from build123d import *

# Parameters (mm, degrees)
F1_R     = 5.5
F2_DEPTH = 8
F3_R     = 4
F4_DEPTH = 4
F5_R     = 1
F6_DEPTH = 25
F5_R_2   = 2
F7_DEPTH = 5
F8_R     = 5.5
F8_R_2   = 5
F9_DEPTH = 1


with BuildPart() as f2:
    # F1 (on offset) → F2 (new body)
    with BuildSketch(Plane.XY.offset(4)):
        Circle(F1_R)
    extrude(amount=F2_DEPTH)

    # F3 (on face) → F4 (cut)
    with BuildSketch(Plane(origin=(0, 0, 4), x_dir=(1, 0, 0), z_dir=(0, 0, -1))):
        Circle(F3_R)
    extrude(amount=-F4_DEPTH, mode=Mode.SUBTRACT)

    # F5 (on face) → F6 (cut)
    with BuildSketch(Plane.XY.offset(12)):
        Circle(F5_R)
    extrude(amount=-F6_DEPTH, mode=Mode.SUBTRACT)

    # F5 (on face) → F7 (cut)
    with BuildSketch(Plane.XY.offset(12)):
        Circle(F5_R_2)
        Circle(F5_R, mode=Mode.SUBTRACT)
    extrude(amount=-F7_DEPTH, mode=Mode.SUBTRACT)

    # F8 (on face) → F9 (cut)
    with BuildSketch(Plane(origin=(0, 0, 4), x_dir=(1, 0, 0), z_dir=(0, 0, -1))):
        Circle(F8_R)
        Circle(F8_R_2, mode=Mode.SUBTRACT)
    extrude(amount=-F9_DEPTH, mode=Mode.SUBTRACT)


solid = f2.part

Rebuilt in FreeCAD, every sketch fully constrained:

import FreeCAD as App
import Part
import Sketcher
Q = App.Units.Quantity

doc = App.newDocument("Part")
body = doc.addObject("PartDesign::Body", "Body")

# Sketch on XY plane
sketch1 = body.newObject("Sketcher::SketchObject", "Sketch")
sketch1.AttachmentSupport = (doc.getObject("XY_Plane"), [""])
sketch1.MapMode = "FlatFace"
sketch1.AttachmentOffset = App.Placement(App.Vector(0, 0, 4), App.Rotation())
sketch1.addGeometry(Part.Circle(App.Vector(0, 0, 0), App.Vector(0, 0, 1), 6), False)
sketch1.addConstraint([
    Sketcher.Constraint("Coincident", 0, 3, -1, 1),
    Sketcher.Constraint("Diameter", 0, Q("11 mm")),
])
pad1 = body.newObject("PartDesign::Pad", "Pad")
pad1.Profile = sketch1
pad1.Length = 8

# Sketch on XY plane
sketch2 = body.newObject("Sketcher::SketchObject", "Sketch001")
sketch2.AttachmentSupport = (doc.getObject("XY_Plane"), [""])
sketch2.MapMode = "FlatFace"
sketch2.AttachmentOffset = App.Placement(App.Vector(0, 0, 4), App.Rotation())
sketch2.addGeometry(Part.Circle(App.Vector(0, 0, 0), App.Vector(0, 0, 1), 4), False)
sketch2.addConstraint([
    Sketcher.Constraint("Coincident", 0, 3, -1, 1),
    Sketcher.Constraint("Diameter", 0, Q("8 mm")),
])
pocket1 = body.newObject("PartDesign::Pocket", "Pocket")
pocket1.Profile = sketch2
pocket1.Length = 4
pocket1.Reversed = True

# Sketch on XY plane
sketch3 = body.newObject("Sketcher::SketchObject", "Sketch002")
sketch3.AttachmentSupport = (doc.getObject("XY_Plane"), [""])
sketch3.MapMode = "FlatFace"
sketch3.AttachmentOffset = App.Placement(App.Vector(0, 0, 12), App.Rotation())
sketch3.addGeometry(Part.Circle(App.Vector(0, 0, 0), App.Vector(0, 0, 1), 1), False)
sketch3.addConstraint([
    Sketcher.Constraint("Coincident", 0, 3, -1, 1),
    Sketcher.Constraint("Diameter", 0, Q("2 mm")),
])
pocket2 = body.newObject("PartDesign::Pocket", "Pocket001")
pocket2.Profile = sketch3
pocket2.Length = 25

# Sketch on XY plane
sketch4 = body.newObject("Sketcher::SketchObject", "Sketch003")
sketch4.AttachmentSupport = (doc.getObject("XY_Plane"), [""])
sketch4.MapMode = "FlatFace"
sketch4.AttachmentOffset = App.Placement(App.Vector(0, 0, 12), App.Rotation())
sketch4.addGeometry([
    Part.Circle(App.Vector(0, 0, 0), App.Vector(0, 0, 1), 2),
    Part.Circle(App.Vector(0, 0, 0), App.Vector(0, 0, 1), 1),
], False)
sketch4.addConstraint([
    Sketcher.Constraint("Coincident", 0, 3, -1, 1),
    Sketcher.Constraint("Coincident", 1, 3, -1, 1),
    Sketcher.Constraint("Diameter", 0, Q("4 mm")),
    Sketcher.Constraint("Diameter", 1, Q("2 mm")),
])
pocket3 = body.newObject("PartDesign::Pocket", "Pocket002")
pocket3.Profile = sketch4
pocket3.Length = 5

# Sketch on XY plane
sketch5 = body.newObject("Sketcher::SketchObject", "Sketch004")
sketch5.AttachmentSupport = (doc.getObject("XY_Plane"), [""])
sketch5.MapMode = "FlatFace"
sketch5.AttachmentOffset = App.Placement(App.Vector(0, 0, 4), App.Rotation())
sketch5.addGeometry([
    Part.Circle(App.Vector(0, 0, 0), App.Vector(0, 0, 1), 6),
    Part.Circle(App.Vector(0, 0, 0), App.Vector(0, 0, 1), 5),
], False)
sketch5.addConstraint([
    Sketcher.Constraint("Coincident", 0, 3, -1, 1),
    Sketcher.Constraint("Coincident", 1, 3, -1, 1),
    Sketcher.Constraint("Diameter", 0, Q("11 mm")),
    Sketcher.Constraint("Diameter", 1, Q("10 mm")),
])
pocket4 = body.newObject("PartDesign::Pocket", "Pocket003")
pocket4.Profile = sketch5
pocket4.Length = 1
pocket4.Reversed = True

doc.recompute()
